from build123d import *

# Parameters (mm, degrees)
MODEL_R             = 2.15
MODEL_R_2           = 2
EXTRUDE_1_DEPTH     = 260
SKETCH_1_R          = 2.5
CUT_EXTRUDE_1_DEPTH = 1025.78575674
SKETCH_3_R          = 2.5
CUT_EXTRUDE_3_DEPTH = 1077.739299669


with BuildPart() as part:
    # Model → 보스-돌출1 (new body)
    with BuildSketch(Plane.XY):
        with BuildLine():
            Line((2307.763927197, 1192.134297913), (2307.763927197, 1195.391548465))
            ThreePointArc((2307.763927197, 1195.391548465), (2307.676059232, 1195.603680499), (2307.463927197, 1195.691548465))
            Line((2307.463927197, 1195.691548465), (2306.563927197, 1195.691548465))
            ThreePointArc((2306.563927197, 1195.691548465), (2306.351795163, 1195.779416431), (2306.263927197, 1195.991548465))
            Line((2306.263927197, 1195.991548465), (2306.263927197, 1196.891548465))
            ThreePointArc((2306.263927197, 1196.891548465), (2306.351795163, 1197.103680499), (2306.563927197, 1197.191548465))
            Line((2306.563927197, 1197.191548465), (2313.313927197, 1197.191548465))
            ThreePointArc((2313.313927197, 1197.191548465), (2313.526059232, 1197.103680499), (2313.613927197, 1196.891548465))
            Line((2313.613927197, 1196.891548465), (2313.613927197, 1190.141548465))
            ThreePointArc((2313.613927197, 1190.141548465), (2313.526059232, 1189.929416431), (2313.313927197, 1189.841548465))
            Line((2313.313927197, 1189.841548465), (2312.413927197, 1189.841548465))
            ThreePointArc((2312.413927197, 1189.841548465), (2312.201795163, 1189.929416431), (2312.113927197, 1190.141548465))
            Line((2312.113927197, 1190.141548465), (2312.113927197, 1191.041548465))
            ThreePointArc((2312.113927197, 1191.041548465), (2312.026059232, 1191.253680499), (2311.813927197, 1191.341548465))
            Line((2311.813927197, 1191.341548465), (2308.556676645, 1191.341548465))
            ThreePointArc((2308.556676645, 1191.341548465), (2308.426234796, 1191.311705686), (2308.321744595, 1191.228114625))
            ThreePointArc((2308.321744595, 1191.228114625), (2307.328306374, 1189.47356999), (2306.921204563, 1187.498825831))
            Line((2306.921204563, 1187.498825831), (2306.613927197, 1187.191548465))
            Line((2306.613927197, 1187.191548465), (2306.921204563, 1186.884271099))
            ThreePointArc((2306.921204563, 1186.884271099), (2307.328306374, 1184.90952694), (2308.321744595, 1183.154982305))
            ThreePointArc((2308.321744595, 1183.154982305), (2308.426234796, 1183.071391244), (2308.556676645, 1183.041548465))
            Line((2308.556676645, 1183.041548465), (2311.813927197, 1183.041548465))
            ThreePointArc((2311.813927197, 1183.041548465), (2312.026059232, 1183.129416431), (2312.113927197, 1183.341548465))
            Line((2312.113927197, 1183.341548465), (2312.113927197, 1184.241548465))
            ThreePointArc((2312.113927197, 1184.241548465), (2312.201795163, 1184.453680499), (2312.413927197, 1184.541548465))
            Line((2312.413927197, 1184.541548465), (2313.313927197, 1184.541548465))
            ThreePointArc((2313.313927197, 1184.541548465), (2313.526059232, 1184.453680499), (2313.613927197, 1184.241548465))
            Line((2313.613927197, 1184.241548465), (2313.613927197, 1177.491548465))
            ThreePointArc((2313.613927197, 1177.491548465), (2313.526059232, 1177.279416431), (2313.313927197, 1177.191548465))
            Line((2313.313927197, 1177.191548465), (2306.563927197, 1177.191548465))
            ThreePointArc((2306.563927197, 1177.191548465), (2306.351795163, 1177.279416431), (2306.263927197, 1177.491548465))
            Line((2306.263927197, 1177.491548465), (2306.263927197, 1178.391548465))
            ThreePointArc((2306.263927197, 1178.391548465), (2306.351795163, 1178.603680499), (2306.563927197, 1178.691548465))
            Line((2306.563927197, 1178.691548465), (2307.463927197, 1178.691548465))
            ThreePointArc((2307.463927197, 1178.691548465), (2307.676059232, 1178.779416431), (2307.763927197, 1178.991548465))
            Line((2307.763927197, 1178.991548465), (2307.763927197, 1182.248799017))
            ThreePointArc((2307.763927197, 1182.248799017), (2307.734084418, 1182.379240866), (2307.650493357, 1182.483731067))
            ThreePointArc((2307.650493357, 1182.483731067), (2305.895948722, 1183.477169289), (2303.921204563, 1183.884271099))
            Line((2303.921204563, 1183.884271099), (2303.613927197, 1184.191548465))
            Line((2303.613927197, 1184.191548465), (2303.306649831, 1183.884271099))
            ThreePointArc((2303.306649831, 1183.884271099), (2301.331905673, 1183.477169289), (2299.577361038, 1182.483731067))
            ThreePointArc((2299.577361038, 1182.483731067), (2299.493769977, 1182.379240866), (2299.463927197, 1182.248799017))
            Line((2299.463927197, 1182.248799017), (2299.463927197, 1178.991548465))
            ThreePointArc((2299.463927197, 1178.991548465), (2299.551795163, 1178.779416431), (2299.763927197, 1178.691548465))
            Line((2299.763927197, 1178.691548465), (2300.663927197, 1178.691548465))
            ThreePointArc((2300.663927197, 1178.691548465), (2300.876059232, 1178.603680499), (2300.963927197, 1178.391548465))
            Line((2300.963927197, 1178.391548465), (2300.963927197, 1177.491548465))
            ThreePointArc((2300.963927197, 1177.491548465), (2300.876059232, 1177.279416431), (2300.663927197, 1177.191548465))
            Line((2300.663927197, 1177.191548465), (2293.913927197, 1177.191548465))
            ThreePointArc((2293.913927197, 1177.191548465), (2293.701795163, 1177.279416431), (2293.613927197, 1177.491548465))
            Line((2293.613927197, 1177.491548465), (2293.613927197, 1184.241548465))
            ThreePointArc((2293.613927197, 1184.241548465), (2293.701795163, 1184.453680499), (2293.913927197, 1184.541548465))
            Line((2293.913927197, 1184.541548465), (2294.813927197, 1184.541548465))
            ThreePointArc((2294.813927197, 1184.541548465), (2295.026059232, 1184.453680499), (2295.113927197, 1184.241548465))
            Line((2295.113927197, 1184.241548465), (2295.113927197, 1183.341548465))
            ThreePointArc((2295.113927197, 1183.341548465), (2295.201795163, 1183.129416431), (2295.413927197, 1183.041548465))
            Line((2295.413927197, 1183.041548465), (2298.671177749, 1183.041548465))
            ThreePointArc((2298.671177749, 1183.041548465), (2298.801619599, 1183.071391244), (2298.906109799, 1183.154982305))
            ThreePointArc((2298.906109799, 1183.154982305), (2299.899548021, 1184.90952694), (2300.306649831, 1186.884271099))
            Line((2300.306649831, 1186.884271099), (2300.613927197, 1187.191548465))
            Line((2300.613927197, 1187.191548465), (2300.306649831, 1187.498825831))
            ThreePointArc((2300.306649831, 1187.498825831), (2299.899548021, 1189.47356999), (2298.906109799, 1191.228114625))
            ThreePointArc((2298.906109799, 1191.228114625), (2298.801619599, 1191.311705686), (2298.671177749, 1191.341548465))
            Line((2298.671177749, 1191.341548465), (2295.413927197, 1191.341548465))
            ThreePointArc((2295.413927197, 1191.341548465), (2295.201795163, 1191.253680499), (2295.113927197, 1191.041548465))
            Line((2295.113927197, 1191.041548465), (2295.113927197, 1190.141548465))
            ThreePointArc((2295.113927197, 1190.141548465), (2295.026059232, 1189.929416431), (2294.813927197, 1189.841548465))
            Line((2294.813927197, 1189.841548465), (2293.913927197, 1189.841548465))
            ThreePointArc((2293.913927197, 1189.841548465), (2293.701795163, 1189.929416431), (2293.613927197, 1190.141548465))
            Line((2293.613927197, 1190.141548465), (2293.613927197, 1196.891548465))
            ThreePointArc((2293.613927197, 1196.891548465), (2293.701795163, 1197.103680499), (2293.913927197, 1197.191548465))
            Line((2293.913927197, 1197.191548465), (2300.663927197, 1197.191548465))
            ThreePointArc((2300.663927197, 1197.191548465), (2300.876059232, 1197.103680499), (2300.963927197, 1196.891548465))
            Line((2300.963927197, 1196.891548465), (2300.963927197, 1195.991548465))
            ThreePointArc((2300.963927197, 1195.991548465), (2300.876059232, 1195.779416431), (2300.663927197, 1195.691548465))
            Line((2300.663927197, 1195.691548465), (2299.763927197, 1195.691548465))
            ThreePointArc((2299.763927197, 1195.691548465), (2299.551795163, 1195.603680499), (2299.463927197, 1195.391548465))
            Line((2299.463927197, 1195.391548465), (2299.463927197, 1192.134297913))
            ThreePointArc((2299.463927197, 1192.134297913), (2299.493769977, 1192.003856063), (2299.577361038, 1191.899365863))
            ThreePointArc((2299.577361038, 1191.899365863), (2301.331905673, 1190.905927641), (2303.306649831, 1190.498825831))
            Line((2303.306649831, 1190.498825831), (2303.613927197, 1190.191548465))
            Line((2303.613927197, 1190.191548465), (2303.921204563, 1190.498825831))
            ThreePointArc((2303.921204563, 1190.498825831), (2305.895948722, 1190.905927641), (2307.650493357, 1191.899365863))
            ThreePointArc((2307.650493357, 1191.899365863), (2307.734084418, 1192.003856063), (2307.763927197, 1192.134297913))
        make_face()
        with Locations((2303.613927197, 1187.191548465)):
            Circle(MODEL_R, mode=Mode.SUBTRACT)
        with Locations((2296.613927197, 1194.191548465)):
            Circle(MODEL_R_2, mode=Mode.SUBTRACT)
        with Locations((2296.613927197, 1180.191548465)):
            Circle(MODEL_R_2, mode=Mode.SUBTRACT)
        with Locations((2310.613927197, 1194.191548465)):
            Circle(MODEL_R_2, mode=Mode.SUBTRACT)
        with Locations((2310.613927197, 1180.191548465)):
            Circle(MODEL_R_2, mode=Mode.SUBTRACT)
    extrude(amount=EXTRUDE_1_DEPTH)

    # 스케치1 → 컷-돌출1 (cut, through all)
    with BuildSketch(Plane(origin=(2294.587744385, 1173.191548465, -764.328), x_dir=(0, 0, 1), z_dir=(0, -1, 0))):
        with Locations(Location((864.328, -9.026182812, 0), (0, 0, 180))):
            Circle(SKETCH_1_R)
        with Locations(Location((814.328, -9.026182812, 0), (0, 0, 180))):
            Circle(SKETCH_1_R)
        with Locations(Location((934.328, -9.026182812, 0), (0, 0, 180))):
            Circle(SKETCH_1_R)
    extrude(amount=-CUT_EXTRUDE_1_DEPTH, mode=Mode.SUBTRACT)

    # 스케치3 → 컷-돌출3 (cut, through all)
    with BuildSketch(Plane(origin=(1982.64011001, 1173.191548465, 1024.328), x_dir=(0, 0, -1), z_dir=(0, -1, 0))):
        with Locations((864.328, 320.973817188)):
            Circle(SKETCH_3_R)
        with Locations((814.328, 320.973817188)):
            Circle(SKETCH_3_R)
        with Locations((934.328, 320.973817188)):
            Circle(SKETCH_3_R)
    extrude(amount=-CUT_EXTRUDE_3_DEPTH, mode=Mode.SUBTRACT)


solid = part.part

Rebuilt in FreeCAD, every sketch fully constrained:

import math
import FreeCAD as App
import Part
import Sketcher
from FreeCAD import Vector

doc = App.newDocument("Part")
body = doc.addObject("PartDesign::Body", "Body")

sketch1 = body.newObject("Sketcher::SketchObject", "Sketch")
sketch1.AttachmentSupport = (doc.getObject("XY_Plane"), [""])
sketch1.MapMode = "FlatFace"
sketch1.addGeometry([
    Part.LineSegment(Vector(2307.76, 1195.39, 0), Vector(2307.76, 1192.13, 0)),
    Part.ArcOfCircle(Part.Circle(Vector(2307.46, 1192.13, 0), Vector(0, 0, 1), 0.3), math.radians(-52), math.radians(0)),
    Part.ArcOfCircle(Part.Circle(Vector(2303.61, 1196.98, 0), Vector(0, 0, 1), 6.49), math.radians(-87), math.radians(-52)),
    Part.LineSegment(Vector(2303.92, 1190.5, 0), Vector(2303.61, 1190.19, 0)),
    Part.LineSegment(Vector(2303.61, 1190.19, 0), Vector(2303.31, 1190.5, 0)),
    Part.ArcOfCircle(Part.Circle(Vector(2303.61, 1196.98, 0), Vector(0, 0, 1), 6.49), math.radians(-128), math.radians(-93)),
    Part.ArcOfCircle(Part.Circle(Vector(2299.76, 1192.13, 0), Vector(0, 0, 1), 0.3), math.radians(-180), math.radians(-128)),
    Part.LineSegment(Vector(2299.46, 1192.13, 0), Vector(2299.46, 1195.39, 0)),
    Part.ArcOfCircle(Part.Circle(Vector(2299.76, 1195.39, 0), Vector(0, 0, 1), 0.3), math.radians(90), math.radians(180)),
    Part.LineSegment(Vector(2299.76, 1195.69, 0), Vector(2300.66, 1195.69, 0)),
    Part.ArcOfCircle(Part.Circle(Vector(2300.66, 1195.99, 0), Vector(0, 0, 1), 0.3), math.radians(-90), math.radians(0)),
    Part.LineSegment(Vector(2300.96, 1195.99, 0), Vector(2300.96, 1196.89, 0)),
    Part.ArcOfCircle(Part.Circle(Vector(2300.66, 1196.89, 0), Vector(0, 0, 1), 0.3), math.radians(0), math.radians(90)),
    Part.LineSegment(Vector(2300.66, 1197.19, 0), Vector(2293.91, 1197.19, 0)),
    Part.ArcOfCircle(Part.Circle(Vector(2293.91, 1196.89, 0), Vector(0, 0, 1), 0.3), math.radians(90), math.radians(180)),
    Part.LineSegment(Vector(2293.61, 1196.89, 0), Vector(2293.61, 1190.14, 0)),
    Part.ArcOfCircle(Part.Circle(Vector(2293.91, 1190.14, 0), Vector(0, 0, 1), 0.3), math.radians(-180), math.radians(-90)),
    Part.LineSegment(Vector(2293.91, 1189.84, 0), Vector(2294.81, 1189.84, 0)),
    Part.ArcOfCircle(Part.Circle(Vector(2294.81, 1190.14, 0), Vector(0, 0, 1), 0.3), math.radians(-90), math.radians(0)),
    Part.LineSegment(Vector(2295.11, 1190.14, 0), Vector(2295.11, 1191.04, 0)),
    Part.ArcOfCircle(Part.Circle(Vector(2295.41, 1191.04, 0), Vector(0, 0, 1), 0.3), math.radians(90), math.radians(180)),
    Part.LineSegment(Vector(2295.41, 1191.34, 0), Vector(2298.67, 1191.34, 0)),
    Part.ArcOfCircle(Part.Circle(Vector(2298.67, 1191.04, 0), Vector(0, 0, 1), 0.3), math.radians(38), math.radians(90)),
    Part.ArcOfCircle(Part.Circle(Vector(2293.82, 1187.19, 0), Vector(0, 0, 1), 6.49), math.radians(3), math.radians(38)),
    Part.LineSegment(Vector(2300.31, 1187.5, 0), Vector(2300.61, 1187.19, 0)),
    Part.LineSegment(Vector(2300.61, 1187.19, 0), Vector(2300.31, 1186.88, 0)),
    Part.ArcOfCircle(Part.Circle(Vector(2293.82, 1187.19, 0), Vector(0, 0, 1), 6.49), math.radians(-38), math.radians(-3)),
    Part.ArcOfCircle(Part.Circle(Vector(2298.67, 1183.34, 0), Vector(0, 0, 1), 0.3), math.radians(-90), math.radians(-38)),
    Part.LineSegment(Vector(2298.67, 1183.04, 0), Vector(2295.41, 1183.04, 0)),
    Part.ArcOfCircle(Part.Circle(Vector(2295.41, 1183.34, 0), Vector(0, 0, 1), 0.3), math.radians(-180), math.radians(-90)),
    Part.LineSegment(Vector(2295.11, 1183.34, 0), Vector(2295.11, 1184.24, 0)),
    Part.ArcOfCircle(Part.Circle(Vector(2294.81, 1184.24, 0), Vector(0, 0, 1), 0.3), math.radians(0), math.radians(90)),
    Part.LineSegment(Vector(2294.81, 1184.54, 0), Vector(2293.91, 1184.54, 0)),
    Part.ArcOfCircle(Part.Circle(Vector(2293.91, 1184.24, 0), Vector(0, 0, 1), 0.3), math.radians(90), math.radians(180)),
    Part.LineSegment(Vector(2293.61, 1184.24, 0), Vector(2293.61, 1177.49, 0)),
    Part.ArcOfCircle(Part.Circle(Vector(2293.91, 1177.49, 0), Vector(0, 0, 1), 0.3), math.radians(-180), math.radians(-90)),
    Part.LineSegment(Vector(2293.91, 1177.19, 0), Vector(2300.66, 1177.19, 0)),
    Part.ArcOfCircle(Part.Circle(Vector(2300.66, 1177.49, 0), Vector(0, 0, 1), 0.3), math.radians(-90), math.radians(0)),
    Part.LineSegment(Vector(2300.96, 1177.49, 0), Vector(2300.96, 1178.39, 0)),
    Part.ArcOfCircle(Part.Circle(Vector(2300.66, 1178.39, 0), Vector(0, 0, 1), 0.3), math.radians(0), math.radians(90)),
    Part.LineSegment(Vector(2300.66, 1178.69, 0), Vector(2299.76, 1178.69, 0)),
    Part.ArcOfCircle(Part.Circle(Vector(2299.76, 1178.99, 0), Vector(0, 0, 1), 0.3), math.radians(-180), math.radians(-90)),
    Part.LineSegment(Vector(2299.46, 1178.99, 0), Vector(2299.46, 1182.25, 0)),
    Part.ArcOfCircle(Part.Circle(Vector(2299.76, 1182.25, 0), Vector(0, 0, 1), 0.3), math.radians(128), math.radians(180)),
    Part.ArcOfCircle(Part.Circle(Vector(2303.61, 1177.4, 0), Vector(0, 0, 1), 6.49), math.radians(93), math.radians(128)),
    Part.LineSegment(Vector(2303.31, 1183.88, 0), Vector(2303.61, 1184.19, 0)),
    Part.LineSegment(Vector(2303.61, 1184.19, 0), Vector(2303.92, 1183.88, 0)),
    Part.ArcOfCircle(Part.Circle(Vector(2303.61, 1177.4, 0), Vector(0, 0, 1), 6.49), math.radians(52), math.radians(87)),
    Part.ArcOfCircle(Part.Circle(Vector(2307.46, 1182.25, 0), Vector(0, 0, 1), 0.3), math.radians(0), math.radians(52)),
    Part.LineSegment(Vector(2307.76, 1182.25, 0), Vector(2307.76, 1178.99, 0)),
    Part.ArcOfCircle(Part.Circle(Vector(2307.46, 1178.99, 0), Vector(0, 0, 1), 0.3), math.radians(-90), math.radians(0)),
    Part.LineSegment(Vector(2307.46, 1178.69, 0), Vector(2306.56, 1178.69, 0)),
    Part.ArcOfCircle(Part.Circle(Vector(2306.56, 1178.39, 0), Vector(0, 0, 1), 0.3), math.radians(90), math.radians(180)),
    Part.LineSegment(Vector(2306.26, 1178.39, 0), Vector(2306.26, 1177.49, 0)),
    Part.ArcOfCircle(Part.Circle(Vector(2306.56, 1177.49, 0), Vector(0, 0, 1), 0.3), math.radians(-180), math.radians(-90)),
    Part.LineSegment(Vector(2306.56, 1177.19, 0), Vector(2313.31, 1177.19, 0)),
    Part.ArcOfCircle(Part.Circle(Vector(2313.31, 1177.49, 0), Vector(0, 0, 1), 0.3), math.radians(-90), math.radians(0)),
    Part.LineSegment(Vector(2313.61, 1177.49, 0), Vector(2313.61, 1184.24, 0)),
    Part.ArcOfCircle(Part.Circle(Vector(2313.31, 1184.24, 0), Vector(0, 0, 1), 0.3), math.radians(0), math.radians(90)),
    Part.LineSegment(Vector(2313.31, 1184.54, 0), Vector(2312.41, 1184.54, 0)),
    Part.ArcOfCircle(Part.Circle(Vector(2312.41, 1184.24, 0), Vector(0, 0, 1), 0.3), math.radians(90), math.radians(180)),
    Part.LineSegment(Vector(2312.11, 1184.24, 0), Vector(2312.11, 1183.34, 0)),
    Part.ArcOfCircle(Part.Circle(Vector(2311.81, 1183.34, 0), Vector(0, 0, 1), 0.3), math.radians(-90), math.radians(0)),
    Part.LineSegment(Vector(2311.81, 1183.04, 0), Vector(2308.56, 1183.04, 0)),
    Part.ArcOfCircle(Part.Circle(Vector(2308.56, 1183.34, 0), Vector(0, 0, 1), 0.3), math.radians(-142), math.radians(-90)),
    Part.ArcOfCircle(Part.Circle(Vector(2313.4, 1187.19, 0), Vector(0, 0, 1), 6.49), math.radians(-177), math.radians(-142)),
    Part.LineSegment(Vector(2306.92, 1186.88, 0), Vector(2306.61, 1187.19, 0)),
    Part.LineSegment(Vector(2306.61, 1187.19, 0), Vector(2306.92, 1187.5, 0)),
    Part.ArcOfCircle(Part.Circle(Vector(2313.4, 1187.19, 0), Vector(0, 0, 1), 6.49), math.radians(142), math.radians(177)),
    Part.ArcOfCircle(Part.Circle(Vector(2308.56, 1191.04, 0), Vector(0, 0, 1), 0.3), math.radians(90), math.radians(142)),
    Part.LineSegment(Vector(2308.56, 1191.34, 0), Vector(2311.81, 1191.34, 0)),
    Part.ArcOfCircle(Part.Circle(Vector(2311.81, 1191.04, 0), Vector(0, 0, 1), 0.3), math.radians(0), math.radians(90)),
    Part.LineSegment(Vector(2312.11, 1191.04, 0), Vector(2312.11, 1190.14, 0)),
    Part.ArcOfCircle(Part.Circle(Vector(2312.41, 1190.14, 0), Vector(0, 0, 1), 0.3), math.radians(-180), math.radians(-90)),
    Part.LineSegment(Vector(2312.41, 1189.84, 0), Vector(2313.31, 1189.84, 0)),
    Part.ArcOfCircle(Part.Circle(Vector(2313.31, 1190.14, 0), Vector(0, 0, 1), 0.3), math.radians(-90), math.radians(0)),
    Part.LineSegment(Vector(2313.61, 1190.14, 0), Vector(2313.61, 1196.89, 0)),
    Part.ArcOfCircle(Part.Circle(Vector(2313.31, 1196.89, 0), Vector(0, 0, 1), 0.3), math.radians(0), math.radians(90)),
    Part.LineSegment(Vector(2313.31, 1197.19, 0), Vector(2306.56, 1197.19, 0)),
    Part.ArcOfCircle(Part.Circle(Vector(2306.56, 1196.89, 0), Vector(0, 0, 1), 0.3), math.radians(90), math.radians(180)),
    Part.LineSegment(Vector(2306.26, 1196.89, 0), Vector(2306.26, 1195.99, 0)),
    Part.ArcOfCircle(Part.Circle(Vector(2306.56, 1195.99, 0), Vector(0, 0, 1), 0.3), math.radians(-180), math.radians(-90)),
    Part.LineSegment(Vector(2306.56, 1195.69, 0), Vector(2307.46, 1195.69, 0)),
    Part.ArcOfCircle(Part.Circle(Vector(2307.46, 1195.39, 0), Vector(0, 0, 1), 0.3), math.radians(0), math.radians(90)),
    Part.Circle(Vector(2310.61, 1180.19, 0), Vector(0, 0, 1), 2),
    Part.Circle(Vector(2296.61, 1180.19, 0), Vector(0, 0, 1), 2),
    Part.Circle(Vector(2310.61, 1194.19, 0), Vector(0, 0, 1), 2),
    Part.Circle(Vector(2303.61, 1187.19, 0), Vector(0, 0, 1), 2.15),
    Part.Circle(Vector(2296.61, 1194.19, 0), Vector(0, 0, 1), 2),
], False)
sketch1.addConstraint([
    Sketcher.Constraint("Tangent", 0, 2, 1, 2),
    Sketcher.Constraint("Tangent", 1, 1, 2, 2),
    Sketcher.Constraint("Coincident", 2, 1, 3, 1),
    Sketcher.Constraint("Coincident", 3, 2, 4, 1),
    Sketcher.Constraint("Coincident", 4, 2, 5, 2),
    Sketcher.Constraint("Tangent", 5, 1, 6, 2),
    Sketcher.Constraint("Tangent", 6, 1, 7, 1),
    Sketcher.Constraint("Tangent", 7, 2, 8, 2),
    Sketcher.Constraint("Tangent", 8, 1, 9, 1),
    Sketcher.Constraint("Tangent", 9, 2, 10, 1),
    Sketcher.Constraint("Tangent", 10, 2, 11, 1),
    Sketcher.Constraint("Tangent", 11, 2, 12, 1),
    Sketcher.Constraint("Tangent", 12, 2, 13, 1),
    Sketcher.Constraint("Tangent", 13, 2, 14, 1),
    Sketcher.Constraint("Tangent", 14, 2, 15, 1),
    Sketcher.Constraint("Tangent", 15, 2, 16, 1),
    Sketcher.Constraint("Tangent", 16, 2, 17, 1),
    Sketcher.Constraint("Tangent", 17, 2, 18, 1),
    Sketcher.Constraint("Tangent", 18, 2, 19, 1),
    Sketcher.Constraint("Tangent", 19, 2, 20, 2),
    Sketcher.Constraint("Tangent", 20, 1, 21, 1),
    Sketcher.Constraint("Tangent", 21, 2, 22, 2),
    Sketcher.Constraint("Tangent", 22, 1, 23, 2),
    Sketcher.Constraint("Coincident", 23, 1, 24, 1),
    Sketcher.Constraint("Coincident", 24, 2, 25, 1),
    Sketcher.Constraint("Coincident", 25, 2, 26, 2),
    Sketcher.Constraint("Tangent", 26, 1, 27, 2),
    Sketcher.Constraint("Tangent", 27, 1, 28, 1),
    Sketcher.Constraint("Tangent", 28, 2, 29, 2),
    Sketcher.Constraint("Tangent", 29, 1, 30, 1),
    Sketcher.Constraint("Tangent", 30, 2, 31, 1),
    Sketcher.Constraint("Tangent", 31, 2, 32, 1),
    Sketcher.Constraint("Tangent", 32, 2, 33, 1),
    Sketcher.Constraint("Tangent", 33, 2, 34, 1),
    Sketcher.Constraint("Tangent", 34, 2, 35, 1),
    Sketcher.Constraint("Tangent", 35, 2, 36, 1),
    Sketcher.Constraint("Tangent", 36, 2, 37, 1),
    Sketcher.Constraint("Tangent", 37, 2, 38, 1),
    Sketcher.Constraint("Tangent", 38, 2, 39, 1),
    Sketcher.Constraint("Tangent", 39, 2, 40, 1),
    Sketcher.Constraint("Tangent", 40, 2, 41, 2),
    Sketcher.Constraint("Tangent", 41, 1, 42, 1),
    Sketcher.Constraint("Tangent", 42, 2, 43, 2),
    Sketcher.Constraint("Tangent", 43, 1, 44, 2),
    Sketcher.Constraint("Coincident", 44, 1, 45, 1),
    Sketcher.Constraint("Coincident", 45, 2, 46, 1),
    Sketcher.Constraint("Coincident", 46, 2, 47, 2),
    Sketcher.Constraint("Tangent", 47, 1, 48, 2),
    Sketcher.Constraint("Tangent", 48, 1, 49, 1),
    Sketcher.Constraint("Tangent", 49, 2, 50, 2),
    Sketcher.Constraint("Tangent", 50, 1, 51, 1),
    Sketcher.Constraint("Tangent", 51, 2, 52, 1),
    Sketcher.Constraint("Tangent", 52, 2, 53, 1),
    Sketcher.Constraint("Tangent", 53, 2, 54, 1),
    Sketcher.Constraint("Tangent", 54, 2, 55, 1),
    Sketcher.Constraint("Tangent", 55, 2, 56, 1),
    Sketcher.Constraint("Tangent", 56, 2, 57, 1),
    Sketcher.Constraint("Tangent", 57, 2, 58, 1),
    Sketcher.Constraint("Tangent", 58, 2, 59, 1),
    Sketcher.Constraint("Tangent", 59, 2, 60, 1),
    Sketcher.Constraint("Tangent", 60, 2, 61, 1),
    Sketcher.Constraint("Tangent", 61, 2, 62, 2),
    Sketcher.Constraint("Tangent", 62, 1, 63, 1),
    Sketcher.Constraint("Tangent", 63, 2, 64, 2),
    Sketcher.Constraint("Tangent", 64, 1, 65, 2),
    Sketcher.Constraint("Coincident", 65, 1, 66, 1),
    Sketcher.Constraint("Coincident", 66, 2, 67, 1),
    Sketcher.Constraint("Coincident", 67, 2, 68, 2),
    Sketcher.Constraint("Tangent", 68, 1, 69, 2),
    Sketcher.Constraint("Tangent", 69, 1, 70, 1),
    Sketcher.Constraint("Tangent", 70, 2, 71, 2),
    Sketcher.Constraint("Tangent", 71, 1, 72, 1),
    Sketcher.Constraint("Tangent", 72, 2, 73, 1),
    Sketcher.Constraint("Tangent", 73, 2, 74, 1),
    Sketcher.Constraint("Tangent", 74, 2, 75, 1),
    Sketcher.Constraint("Tangent", 75, 2, 76, 1),
    Sketcher.Constraint("Tangent", 76, 2, 77, 1),
    Sketcher.Constraint("Tangent", 77, 2, 78, 1),
    Sketcher.Constraint("Tangent", 78, 2, 79, 1),
    Sketcher.Constraint("Tangent", 79, 2, 80, 1),
    Sketcher.Constraint("Tangent", 80, 2, 81, 1),
    Sketcher.Constraint("Tangent", 81, 2, 82, 1),
    Sketcher.Constraint("Tangent", 82, 2, 83, 2),
    Sketcher.Constraint("Tangent", 83, 1, 0, 1),
    Sketcher.Constraint("Vertical", 0),
    Sketcher.Constraint("Vertical", 7),
    Sketcher.Constraint("Horizontal", 9),
    Sketcher.Constraint("Vertical", 11),
    Sketcher.Constraint("Horizontal", 13),
    Sketcher.Constraint("Vertical", 15),
    Sketcher.Constraint("Horizontal", 17),
    Sketcher.Constraint("Vertical", 19),
    Sketcher.Constraint("Horizontal", 21),
    Sketcher.Constraint("Horizontal", 28),
    Sketcher.Constraint("Vertical", 30),
    Sketcher.Constraint("Horizontal", 32),
    Sketcher.Constraint("Vertical", 34),
    Sketcher.Constraint("Horizontal", 36),
    Sketcher.Constraint("Vertical", 38),
    Sketcher.Constraint("Horizontal", 40),
    Sketcher.Constraint("Vertical", 42),
    Sketcher.Constraint("Vertical", 49),
    Sketcher.Constraint("Horizontal", 51),
    Sketcher.Constraint("Vertical", 53),
    Sketcher.Constraint("Horizontal", 55),
    Sketcher.Constraint("Vertical", 57),
    Sketcher.Constraint("Horizontal", 59),
    Sketcher.Constraint("Vertical", 61),
    Sketcher.Constraint("Horizontal", 63),
    Sketcher.Constraint("Horizontal", 70),
    Sketcher.Constraint("Vertical", 72),
    Sketcher.Constraint("Horizontal", 74),
    Sketcher.Constraint("Vertical", 76),
    Sketcher.Constraint("Horizontal", 78),
    Sketcher.Constraint("Vertical", 80),
    Sketcher.Constraint("Horizontal", 82),
    Sketcher.Constraint("Coincident", 5, 3, 2, 3),
    Sketcher.Constraint("Coincident", 26, 3, 23, 3),
    Sketcher.Constraint("Coincident", 47, 3, 44, 3),
    Sketcher.Constraint("Coincident", 68, 3, 65, 3),
    Sketcher.Constraint("Equal", 2, 5),
    Sketcher.Constraint("Equal", 1, 6),
    Sketcher.Constraint("Equal", 6, 8),
    Sketcher.Constraint("Equal", 8, 10),
    Sketcher.Constraint("Equal", 10, 12),
    Sketcher.Constraint("Equal", 12, 14),
    Sketcher.Constraint("Equal", 14, 16),
    Sketcher.Constraint("Equal", 16, 18),
    Sketcher.Constraint("Equal", 18, 20),
    Sketcher.Constraint("Equal", 20, 22),
    Sketcher.Constraint("Equal", 5, 23),
    Sketcher.Constraint("Equal", 23, 26),
    Sketcher.Constraint("Equal", 22, 27),
    Sketcher.Constraint("Equal", 27, 29),
    Sketcher.Constraint("Equal", 29, 31),
    Sketcher.Constraint("Equal", 31, 33),
    Sketcher.Constraint("Equal", 33, 35),
    Sketcher.Constraint("Equal", 35, 37),
    Sketcher.Constraint("Equal", 37, 39),
    Sketcher.Constraint("Equal", 39, 41),
    Sketcher.Constraint("Equal", 41, 43),
    Sketcher.Constraint("Equal", 26, 44),
    Sketcher.Constraint("Equal", 44, 47),
    Sketcher.Constraint("Equal", 43, 48),
    Sketcher.Constraint("Equal", 48, 50),
    Sketcher.Constraint("Equal", 50, 52),
    Sketcher.Constraint("Equal", 52, 54),
    Sketcher.Constraint("Equal", 54, 56),
    Sketcher.Constraint("Equal", 56, 58),
    Sketcher.Constraint("Equal", 58, 60),
    Sketcher.Constraint("Equal", 60, 62),
    Sketcher.Constraint("Equal", 62, 64),
    Sketcher.Constraint("Equal", 47, 65),
    Sketcher.Constraint("Equal", 65, 68),
    Sketcher.Constraint("Equal", 64, 69),
    Sketcher.Constraint("Equal", 69, 71),
    Sketcher.Constraint("Equal", 71, 73),
    Sketcher.Constraint("Equal", 73, 75),
    Sketcher.Constraint("Equal", 75, 77),
    Sketcher.Constraint("Equal", 77, 79),
    Sketcher.Constraint("Equal", 79, 81),
    Sketcher.Constraint("Equal", 81, 83),
    Sketcher.Constraint("Equal", 84, 85),
    Sketcher.Constraint("Equal", 85, 86),
    Sketcher.Constraint("Equal", 86, 88),
    Sketcher.Constraint("Perpendicular", 3, 4),
    Sketcher.Constraint("Parallel", 4, 24),
    Sketcher.Constraint("Perpendicular", 24, 25),
    Sketcher.Constraint("Parallel", 25, 45),
    Sketcher.Constraint("Perpendicular", 45, 46),
    Sketcher.Constraint("Parallel", 46, 66),
    Sketcher.Constraint("Perpendicular", 66, 67),
    Sketcher.Constraint("Horizontal", 1, 3, 6, 3),
    Sketcher.Constraint("Horizontal", 43, 3, 48, 3),
    Sketcher.Constraint("Horizontal", 41, 3, 50, 3),
    Sketcher.Constraint("Horizontal", 37, 3, 54, 3),
    Sketcher.Constraint("Horizontal", 33, 3, 58, 3),
    Sketcher.Constraint("Horizontal", 29, 3, 62, 3),
    Sketcher.Constraint("Horizontal", 26, 3, 65, 3),
    Sketcher.Constraint("Horizontal", 22, 3, 69, 3),
    Sketcher.Constraint("Horizontal", 18, 3, 73, 3),
    Sketcher.Constraint("Horizontal", 14, 3, 77, 3),
    Sketcher.Constraint("Horizontal", 10, 3, 81, 3),
    Sketcher.Constraint("Horizontal", 84, 3, 85, 3),
    Sketcher.Constraint("Horizontal", 68, 3, 87, 3),
    Sketcher.Constraint("Horizontal", 86, 3, 88, 3),
    Sketcher.Constraint("Horizontal", 2, 1, 4, 2),
    Sketcher.Constraint("Horizontal", 87, 3, 24, 2),
    Sketcher.Constraint("Horizontal", 44, 1, 46, 2),
    Sketcher.Constraint("Horizontal", 25, 2, 65, 1),
    Sketcher.Constraint("Horizontal", 24, 2, 66, 2),
    Sketcher.Constraint("Horizontal", 23, 1, 67, 2),
    Sketcher.Constraint("Vertical", 22, 3, 27, 3),
    Sketcher.Constraint("Vertical", 20, 3, 29, 3),
    Sketcher.Constraint("Vertical", 16, 3, 33, 3),
    Sketcher.Constraint("Vertical", 12, 3, 37, 3),
    Sketcher.Constraint("Vertical", 8, 3, 41, 3),
    Sketcher.Constraint("Vertical", 5, 3, 44, 3),
    Sketcher.Constraint("Vertical", 62, 3, 71, 3),
    Sketcher.Constraint("Vertical", 58, 3, 75, 3),
    Sketcher.Constraint("Vertical", 54, 3, 79, 3),
    Sketcher.Constraint("Vertical", 84, 3, 86, 3),
    Sketcher.Constraint("Vertical", 47, 3, 87, 3),
    Sketcher.Constraint("Vertical", 85, 3, 88, 3),
    Sketcher.Constraint("Vertical", 4, 2, 44, 1),
    Sketcher.Constraint("Equal", 9, 17),
    Sketcher.Constraint("Equal", 40, 51),
    Sketcher.Constraint("Equal", 36, 55),
    Sketcher.Constraint("Equal", 51, 59),
    Sketcher.Constraint("Equal", 28, 63),
    Sketcher.Constraint("Equal", 70, 0),
    Sketcher.Constraint("Equal", 82, 11),
    Sketcher.Constraint("Equal", 78, 15),
    Sketcher.Constraint("Equal", 11, 19),
    Sketcher.Constraint("Equal", 19, 30),
    Sketcher.Constraint("Equal", 15, 34),
    Sketcher.Constraint("Equal", 30, 38),
    Sketcher.Constraint("Equal", 7, 42),
    Sketcher.Constraint("Equal", 4, 24),
    Sketcher.Constraint("Diameter", 84, 4.0),
    Sketcher.Constraint("Diameter", 87, 4.3),
    Sketcher.Constraint("Radius", 1, 0.3),
    Sketcher.Constraint("DistanceX", 9, 1, 9, 2, 0.9),
    Sketcher.Constraint("DistanceX", 13, 2, 13, 1, 6.75),
    Sketcher.Constraint("Radius", 2, 6.490833),
    Sketcher.Constraint("DistanceX", 21, 1, 21, 2, 3.257251),
    Sketcher.Constraint("DistanceY", -1, 1, 43, 3, 1182.248799),
    Sketcher.Constraint("DistanceY", -1, 1, 2, 3, 1196.982382),
    Sketcher.Constraint("DistanceY", -1, 1, 8, 3, 1195.391548),
    Sketcher.Constraint("DistanceX", -1, 1, 65, 3, 2313.404761),
    Sketcher.Constraint("DistanceY", -1, 1, 84, 3, 1180.191548),
    Sketcher.Constraint("DistanceY", -1, 1, 86, 3, 1194.191548),
    Sketcher.Constraint("DistanceY", -1, 1, 3, 2, 1190.191548),
    Sketcher.Constraint("DistanceX", -1, 1, 84, 3, 2310.613927),
    Sketcher.Constraint("DistanceX", -1, 1, 85, 3, 2296.613927),
])
pad1 = body.newObject("PartDesign::Pad", "Pad")
pad1.Profile = sketch1
pad1.Length = 260

sketch2 = body.newObject("Sketcher::SketchObject", "Sketch001")
sketch2.AttachmentSupport = (doc.getObject("XZ_Plane"), [""])
sketch2.MapMode = "FlatFace"
sketch2.AttachmentOffset = App.Placement(Vector(0, 0, -1173.191548), App.Rotation())
sketch2.addGeometry([
    Part.Circle(Vector(2303.6, 100, 0), Vector(0, 0, 1), 2.5),
    Part.Circle(Vector(2303.6, 50, 0), Vector(0, 0, 1), 2.5),
    Part.Circle(Vector(2303.6, 170, 0), Vector(0, 0, 1), 2.5),
], False)
sketch2.addConstraint([
    Sketcher.Constraint("Equal", 0, 1),
    Sketcher.Constraint("Equal", 1, 2),
    Sketcher.Constraint("Vertical", 0, 3, 1, 3),
    Sketcher.Constraint("Vertical", 1, 3, 2, 3),
    Sketcher.Constraint("Diameter", 0, 5.0),
    Sketcher.Constraint("DistanceY", -1, 1, 0, 3, 100.0),
    Sketcher.Constraint("DistanceY", -1, 1, 1, 3, 50.0),
    Sketcher.Constraint("DistanceY", -1, 1, 2, 3, 170.0),
    Sketcher.Constraint("DistanceX", -1, 1, 0, 3, 2303.613927),
])
pocket1 = body.newObject("PartDesign::Pocket", "Pocket")
pocket1.Profile = sketch2
pocket1.Type = "ThroughAll"

sketch3 = body.newObject("Sketcher::SketchObject", "Sketch002")
sketch3.AttachmentSupport = (doc.getObject("XZ_Plane"), [""])
sketch3.MapMode = "FlatFace"
sketch3.AttachmentOffset = App.Placement(Vector(0, 0, -1173.191548), App.Rotation())
sketch3.addGeometry([
    Part.Circle(Vector(2303.6, 160, 0), Vector(0, 0, 1), 2.5),
    Part.Circle(Vector(2303.6, 210, 0), Vector(0, 0, 1), 2.5),
    Part.Circle(Vector(2303.6, 90, 0), Vector(0, 0, 1), 2.5),
], False)
sketch3.addConstraint([
    Sketcher.Constraint("Equal", 0, 1),
    Sketcher.Constraint("Equal", 1, 2),
    Sketcher.Constraint("Vertical", 0, 3, 1, 3),
    Sketcher.Constraint("Vertical", 1, 3, 2, 3),
    Sketcher.Constraint("Diameter", 0, 5.0),
    Sketcher.Constraint("DistanceY", -1, 1, 0, 3, 160.0),
    Sketcher.Constraint("DistanceY", -1, 1, 1, 3, 210.0),
    Sketcher.Constraint("DistanceY", -1, 1, 2, 3, 90.0),
    Sketcher.Constraint("DistanceX", -1, 1, 0, 3, 2303.613927),
])
pocket2 = body.newObject("PartDesign::Pocket", "Pocket001")
pocket2.Profile = sketch3
pocket2.Type = "ThroughAll"

doc.recompute()
